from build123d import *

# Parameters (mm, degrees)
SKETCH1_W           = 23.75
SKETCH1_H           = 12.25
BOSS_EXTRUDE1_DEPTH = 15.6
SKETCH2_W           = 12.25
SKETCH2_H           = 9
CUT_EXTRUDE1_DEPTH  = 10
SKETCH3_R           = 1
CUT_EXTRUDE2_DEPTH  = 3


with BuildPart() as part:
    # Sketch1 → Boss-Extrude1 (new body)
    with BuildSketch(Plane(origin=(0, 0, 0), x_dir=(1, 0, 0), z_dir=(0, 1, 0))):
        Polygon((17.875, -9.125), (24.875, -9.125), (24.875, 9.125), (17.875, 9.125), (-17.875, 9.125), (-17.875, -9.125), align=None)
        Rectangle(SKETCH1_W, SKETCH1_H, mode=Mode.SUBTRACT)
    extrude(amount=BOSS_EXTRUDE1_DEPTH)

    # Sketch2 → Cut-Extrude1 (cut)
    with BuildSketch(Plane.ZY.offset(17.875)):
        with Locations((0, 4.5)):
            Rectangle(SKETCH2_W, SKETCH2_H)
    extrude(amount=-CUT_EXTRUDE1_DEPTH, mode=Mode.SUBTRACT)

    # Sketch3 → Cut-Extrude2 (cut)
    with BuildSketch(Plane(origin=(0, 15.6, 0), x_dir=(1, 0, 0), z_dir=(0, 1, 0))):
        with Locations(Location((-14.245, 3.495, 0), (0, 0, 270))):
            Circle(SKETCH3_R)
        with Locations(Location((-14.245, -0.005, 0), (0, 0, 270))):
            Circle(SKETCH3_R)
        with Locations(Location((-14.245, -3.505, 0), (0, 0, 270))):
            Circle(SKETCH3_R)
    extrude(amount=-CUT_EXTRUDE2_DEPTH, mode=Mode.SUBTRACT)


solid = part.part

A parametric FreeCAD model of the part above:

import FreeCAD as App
import Part
import Sketcher

V = App.Vector
Q = App.Units.Quantity


def add_polygon(sketch, points):
    """Adds a closed chain of lines whose ends are joined by coincident constraints."""
    first, n = sketch.GeometryCount, len(points)
    for a, b in zip(points, points[1:] + points[:1]):
        sketch.addGeometry(Part.LineSegment(App.Vector(*a, 0), App.Vector(*b, 0)), False)
    for i in range(n):
        sketch.addConstraint(Sketcher.Constraint("Coincident", first + i, 2, first + (i + 1) % n, 1))

doc = App.newDocument("Part")
body = doc.addObject("PartDesign::Body", "Body")

sketch1 = body.newObject("Sketcher::SketchObject", "Sketch")
sketch1.AttachmentSupport = (doc.getObject("XZ_Plane"), [""])
sketch1.MapMode = "FlatFace"
add_polygon(sketch1, [(25, 9), (25, -9), (-18, -9), (-18, 9)])
add_polygon(sketch1, [(12, 6), (-12, 6), (-12, -6), (12, -6)])
sketch1.addConstraint(Sketcher.Constraint("Vertical", 0))
sketch1.addConstraint(Sketcher.Constraint("Horizontal", 1))
sketch1.addConstraint(Sketcher.Constraint("Vertical", 2))
sketch1.addConstraint(Sketcher.Constraint("Horizontal", 3))
sketch1.addConstraint(Sketcher.Constraint("Horizontal", 4))
sketch1.addConstraint(Sketcher.Constraint("Vertical", 5))
sketch1.addConstraint(Sketcher.Constraint("Horizontal", 6))
sketch1.addConstraint(Sketcher.Constraint("Vertical", 7))
sketch1.addConstraint(Sketcher.Constraint("Symmetric", 4, 2, 6, 2, -1, 1))
sketch1.addConstraint(Sketcher.Constraint("DistanceX", 2, 2, 4, 2, Q("6 mm")))
sketch1.addConstraint(Sketcher.Constraint("DistanceY", 4, 2, 2, 2, Q("3 mm")))
sketch1.addConstraint(Sketcher.Constraint("DistanceY", 1, 2, 5, 2, Q("3 mm")))
sketch1.addConstraint(Sketcher.Constraint("DistanceX", 6, 2, 0, 2, Q("13 mm")))
sketch1.addConstraint(Sketcher.Constraint("DistanceX", 1, 2, 1, 1, Q("42.75 mm")))
sketch1.addConstraint(Sketcher.Constraint("DistanceY", 0, 2, 0, 1, Q("18.25 mm")))
pad1 = body.newObject("PartDesign::Pad", "Pad")
pad1.Profile = sketch1
pad1.Length = 15.6
pad1.Reversed = True

sketch2 = body.newObject("Sketcher::SketchObject", "Sketch001")
sketch2.AttachmentSupport = (doc.getObject("YZ_Plane"), [""])
sketch2.MapMode = "FlatFace"
sketch2.AttachmentOffset = App.Placement(V(0, 0, -17.875), App.Rotation())
add_polygon(sketch2, [(9, -6), (0, -6), (0, 6), (9, 6)])
sketch2.addConstraint(Sketcher.Constraint("Horizontal", 0))
sketch2.addConstraint(Sketcher.Constraint("Vertical", 1))
sketch2.addConstraint(Sketcher.Constraint("Horizontal", 2))
sketch2.addConstraint(Sketcher.Constraint("Vertical", 3))
sketch2.addConstraint(Sketcher.Constraint("Symmetric", 0, 2, 1, 2, -1, 1))
sketch2.addConstraint(Sketcher.Constraint("DistanceX", 0, 2, 0, 1, Q("9 mm")))
sketch2.addConstraint(Sketcher.Constraint("DistanceY", 1, 1, 1, 2, Q("12.25 mm")))
pocket1 = body.newObject("PartDesign::Pocket", "Pocket")
pocket1.Profile = sketch2
pocket1.Length = 10
pocket1.Reversed = True

sketch3 = body.newObject("Sketcher::SketchObject", "Sketch002")
sketch3.AttachmentSupport = (doc.getObject("XZ_Plane"), [""])
sketch3.MapMode = "FlatFace"
sketch3.AttachmentOffset = App.Placement(V(0, 0, -15.6), App.Rotation())
sketch3.addGeometry(Part.Circle(V(-14.2, -3.5, 0), V(0, 0, 1), 1), False)
sketch3.addGeometry(Part.Circle(V(-14.2, 0, 0), V(0, 0, 1), 1), False)
sketch3.addGeometry(Part.Circle(V(-14.2, 3.5, 0), V(0, 0, 1), 1), False)
sketch3.addConstraint(Sketcher.Constraint("Equal", 0, 1))
sketch3.addConstraint(Sketcher.Constraint("Equal", 1, 2))
sketch3.addConstraint(Sketcher.Constraint("Vertical", 0, 3, 1, 3))
sketch3.addConstraint(Sketcher.Constraint("Vertical", 1, 3, 2, 3))
sketch3.addConstraint(Sketcher.Constraint("Diameter", 0, Q("2 mm")))
sketch3.addConstraint(Sketcher.Constraint("DistanceY", 0, 3, 2, 3, Q("7 mm")))
sketch3.addConstraint(Sketcher.Constraint("DistanceY", 0, 3, 1, 3, Q("3.5 mm")))
sketch3.addConstraint(Sketcher.Constraint("DistanceX", 0, 3, -1, 1, Q("14.245 mm")))
sketch3.addConstraint(Sketcher.Constraint("DistanceY", 0, 3, -1, 1, Q("3.495 mm")))
pocket2 = body.newObject("PartDesign::Pocket", "Pocket001")
pocket2.Profile = sketch3
pocket2.Length = 3
pocket2.Reversed = True

doc.recompute()
